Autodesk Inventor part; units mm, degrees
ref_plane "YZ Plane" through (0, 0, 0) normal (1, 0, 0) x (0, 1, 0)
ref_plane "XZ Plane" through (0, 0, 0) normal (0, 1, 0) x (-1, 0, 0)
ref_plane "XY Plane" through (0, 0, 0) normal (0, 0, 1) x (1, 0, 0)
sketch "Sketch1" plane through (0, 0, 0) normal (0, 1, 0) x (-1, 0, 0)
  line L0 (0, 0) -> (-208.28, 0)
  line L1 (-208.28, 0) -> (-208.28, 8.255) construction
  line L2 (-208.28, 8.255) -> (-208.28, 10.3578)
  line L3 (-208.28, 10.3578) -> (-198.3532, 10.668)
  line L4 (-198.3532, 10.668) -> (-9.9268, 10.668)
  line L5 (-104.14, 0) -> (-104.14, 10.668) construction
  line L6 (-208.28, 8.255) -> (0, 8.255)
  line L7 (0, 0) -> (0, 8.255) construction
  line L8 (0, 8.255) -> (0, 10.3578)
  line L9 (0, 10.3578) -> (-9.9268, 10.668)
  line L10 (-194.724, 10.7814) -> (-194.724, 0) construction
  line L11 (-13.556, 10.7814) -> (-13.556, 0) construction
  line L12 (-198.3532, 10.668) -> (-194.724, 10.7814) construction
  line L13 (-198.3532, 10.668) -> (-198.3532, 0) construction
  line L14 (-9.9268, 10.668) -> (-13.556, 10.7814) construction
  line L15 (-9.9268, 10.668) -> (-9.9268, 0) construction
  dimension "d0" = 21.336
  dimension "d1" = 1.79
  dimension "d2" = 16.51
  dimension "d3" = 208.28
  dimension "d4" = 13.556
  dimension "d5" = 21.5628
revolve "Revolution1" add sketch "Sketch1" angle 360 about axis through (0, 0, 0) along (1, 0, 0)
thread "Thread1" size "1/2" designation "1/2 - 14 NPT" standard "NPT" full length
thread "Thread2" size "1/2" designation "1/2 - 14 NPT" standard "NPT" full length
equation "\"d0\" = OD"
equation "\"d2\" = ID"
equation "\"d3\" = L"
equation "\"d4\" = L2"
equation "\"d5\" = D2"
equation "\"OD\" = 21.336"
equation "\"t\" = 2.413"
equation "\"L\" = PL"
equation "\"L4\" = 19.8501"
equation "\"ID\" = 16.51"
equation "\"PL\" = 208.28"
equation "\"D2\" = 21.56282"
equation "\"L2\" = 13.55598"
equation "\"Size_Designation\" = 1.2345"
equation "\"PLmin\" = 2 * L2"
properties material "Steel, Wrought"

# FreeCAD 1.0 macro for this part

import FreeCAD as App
import Part
import Sketcher
from FreeCAD import Vector
Q = App.Units.Quantity


def add_polygon(sketch, points):
    """Adds a closed chain of lines whose ends are joined by coincident constraints."""
    first, n = sketch.GeometryCount, len(points)
    for a, b in zip(points, points[1:] + points[:1]):
        sketch.addGeometry(Part.LineSegment(App.Vector(*a, 0), App.Vector(*b, 0)), False)
    for i in range(n):
        sketch.addConstraint(Sketcher.Constraint("Coincident", first + i, 2, first + (i + 1) % n, 1))

doc = App.newDocument("Part")
body = doc.addObject("PartDesign::Body", "Body")

# Sketch on XZ plane
sketch1 = body.newObject("Sketcher::SketchObject", "Sketch")
sketch1.AttachmentSupport = (doc.getObject("XZ_Plane"), [""])
sketch1.MapMode = "FlatFace"
add_polygon(sketch1, [(208.3, 10.4), (208.3, 8.3), (0, 8.3), (0, 10.4), (9.9, 10.7), (198.4, 10.7)])  # lines 0-5
sketch1.addConstraint(Sketcher.Constraint("Vertical", 0))
sketch1.addConstraint(Sketcher.Constraint("Horizontal", 1))
sketch1.addConstraint(Sketcher.Constraint("Vertical", 2))
sketch1.addConstraint(Sketcher.Constraint("Horizontal", 4))
sketch1.addConstraint(Sketcher.Constraint("PointOnObject", 1, 2, -2))
sketch1.addConstraint(Sketcher.Constraint("Horizontal", 2, 2, 5, 2))
sketch1.addConstraint(Sketcher.Constraint("Equal", 3, 5))
sketch1.addConstraint(Sketcher.Constraint("DistanceX", 1, 2, 1, 1, Q("8.2 in")))
sketch1.addConstraint(Sketcher.Constraint("Angle", 3, Q("1.7898 deg")))
sketch1.addConstraint(Sketcher.Constraint("DistanceY", -1, 1, 3, 2, Q("0.42 in")))
sketch1.addConstraint(Sketcher.Constraint("Distance", 3, Q("0.391 in")))
sketch1.addConstraint(Sketcher.Constraint("DistanceY", -1, 1, 0, 2, Q("0.325 in")))
revolution = body.newObject("PartDesign::Revolution", "Revolution")
revolution.Profile = sketch1
revolution.ReferenceAxis = (sketch1, ["H_Axis"])
revolution.Angle = 360

doc.recompute()
